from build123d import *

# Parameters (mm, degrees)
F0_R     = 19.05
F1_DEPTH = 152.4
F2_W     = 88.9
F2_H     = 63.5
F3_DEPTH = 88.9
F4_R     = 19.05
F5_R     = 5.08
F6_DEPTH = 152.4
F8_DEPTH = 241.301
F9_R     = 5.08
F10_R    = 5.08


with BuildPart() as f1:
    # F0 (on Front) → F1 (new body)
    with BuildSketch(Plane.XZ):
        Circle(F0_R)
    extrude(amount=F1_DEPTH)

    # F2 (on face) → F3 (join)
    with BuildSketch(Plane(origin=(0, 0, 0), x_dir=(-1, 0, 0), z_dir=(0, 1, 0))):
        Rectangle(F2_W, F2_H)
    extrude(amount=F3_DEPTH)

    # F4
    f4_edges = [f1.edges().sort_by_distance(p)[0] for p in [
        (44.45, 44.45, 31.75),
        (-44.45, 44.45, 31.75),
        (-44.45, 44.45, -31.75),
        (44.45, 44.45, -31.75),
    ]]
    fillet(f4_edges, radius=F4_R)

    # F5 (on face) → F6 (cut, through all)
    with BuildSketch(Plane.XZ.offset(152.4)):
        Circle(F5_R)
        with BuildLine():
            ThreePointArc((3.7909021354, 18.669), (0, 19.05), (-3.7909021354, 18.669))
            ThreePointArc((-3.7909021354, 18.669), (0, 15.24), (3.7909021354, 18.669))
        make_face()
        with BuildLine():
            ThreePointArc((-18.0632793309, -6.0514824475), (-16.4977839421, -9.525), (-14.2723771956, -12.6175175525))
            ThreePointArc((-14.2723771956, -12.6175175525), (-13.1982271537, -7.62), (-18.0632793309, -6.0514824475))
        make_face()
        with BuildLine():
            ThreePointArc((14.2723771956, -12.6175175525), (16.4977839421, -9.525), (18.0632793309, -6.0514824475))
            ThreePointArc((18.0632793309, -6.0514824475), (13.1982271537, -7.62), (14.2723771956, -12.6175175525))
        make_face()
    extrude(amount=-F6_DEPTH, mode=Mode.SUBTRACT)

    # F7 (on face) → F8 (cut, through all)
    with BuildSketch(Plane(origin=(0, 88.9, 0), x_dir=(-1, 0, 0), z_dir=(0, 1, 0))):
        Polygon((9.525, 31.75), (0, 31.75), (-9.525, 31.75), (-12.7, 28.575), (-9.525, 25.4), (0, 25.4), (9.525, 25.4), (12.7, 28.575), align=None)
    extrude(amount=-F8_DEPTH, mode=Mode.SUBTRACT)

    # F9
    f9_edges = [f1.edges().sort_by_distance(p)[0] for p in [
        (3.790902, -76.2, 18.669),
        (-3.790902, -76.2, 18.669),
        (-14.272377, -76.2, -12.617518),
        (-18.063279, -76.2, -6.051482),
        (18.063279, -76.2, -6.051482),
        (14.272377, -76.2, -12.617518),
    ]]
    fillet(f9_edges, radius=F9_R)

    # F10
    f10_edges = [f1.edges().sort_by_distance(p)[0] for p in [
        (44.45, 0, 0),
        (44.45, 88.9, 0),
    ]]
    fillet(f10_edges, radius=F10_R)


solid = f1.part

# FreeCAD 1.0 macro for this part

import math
import FreeCAD as App
import Part
import Sketcher
Q = App.Units.Quantity


def edges_at(feature, points):
    """Names of the edges that pass closest to the given points."""
    edges = feature.Shape.Edges
    near = lambda p: min(range(len(edges)), key=lambda i: edges[i].distToShape(Part.Vertex(*p))[0])
    return sorted({f"Edge{near(p) + 1}" for p in points})

doc = App.newDocument("Part")
body = doc.addObject("PartDesign::Body", "Body")

sketch1 = doc.addObject("Sketcher::SketchObject", "Sketch")
body.addObject(sketch1)
sketch1.AttachmentSupport = (doc.XZ_Plane, [""])
sketch1.MapMode = "FlatFace"
sketch1.addGeometry(Part.Circle(App.Vector(0, 0, 0), App.Vector(0, 0, 1), 19), False)
sketch1.addConstraint([
    Sketcher.Constraint("Coincident", 0, 3, -1, 1),
    Sketcher.Constraint("Diameter", 0, Q("1.5 in")),
])
pad1 = doc.addObject("PartDesign::Pad", "Pad")
body.addObject(pad1)
pad1.Profile = sketch1
pad1.Length = Q("6 in")

sketch2 = doc.addObject("Sketcher::SketchObject", "Sketch001")
body.addObject(sketch2)
sketch2.AttachmentSupport = (doc.XZ_Plane, [""])
sketch2.MapMode = "FlatFace"
sketch2.addGeometry([
    Part.LineSegment(App.Vector(44, 32, 0), App.Vector(44, -32, 0)),
    Part.LineSegment(App.Vector(44, -32, 0), App.Vector(-44, -32, 0)),
    Part.LineSegment(App.Vector(-44, -32, 0), App.Vector(-44, 32, 0)),
    Part.LineSegment(App.Vector(-44, 32, 0), App.Vector(44, 32, 0)),
], False)
sketch2.addConstraint([
    Sketcher.Constraint("Coincident", 0, 2, 1, 1),
    Sketcher.Constraint("Coincident", 1, 2, 2, 1),
    Sketcher.Constraint("Coincident", 2, 2, 3, 1),
    Sketcher.Constraint("Coincident", 3, 2, 0, 1),
    Sketcher.Constraint("Vertical", 0),
    Sketcher.Constraint("Horizontal", 1),
    Sketcher.Constraint("Vertical", 2),
    Sketcher.Constraint("Horizontal", 3),
    Sketcher.Constraint("Symmetric", 0, 2, 2, 2, -1, 1),
    Sketcher.Constraint("DistanceX", 1, 2, 1, 1, Q("3.5 in")),
    Sketcher.Constraint("DistanceY", 0, 2, 0, 1, Q("2.5 in")),
])
pad2 = doc.addObject("PartDesign::Pad", "Pad001")
body.addObject(pad2)
pad2.Profile = sketch2
pad2.Length = Q("3.5 in")
pad2.Reversed = True
doc.recompute()

fillet = doc.addObject("PartDesign::Fillet", "Fillet")
body.addObject(fillet)
fillet.Base = (pad2, edges_at(pad2, [
    (44.45, 44.45, 31.75),
    (-44.45, 44.45, 31.75),
    (-44.45, 44.45, -31.75),
    (44.45, 44.45, -31.75),
]))
fillet.Radius = Q("0.75 in")

sketch3 = doc.addObject("Sketcher::SketchObject", "Sketch002")
body.addObject(sketch3)
sketch3.AttachmentSupport = (doc.XZ_Plane, [""])
sketch3.MapMode = "FlatFace"
sketch3.AttachmentOffset = App.Placement(App.Vector(0, 0, 6 * 25.4), App.Rotation())
sketch3.addGeometry([
    Part.Circle(App.Vector(0, 0, 0), App.Vector(0, 0, 1), 5.1),
    Part.ArcOfCircle(Part.Circle(App.Vector(0, 0, 0), App.Vector(0, 0, 1), 19.1), math.radians(79), math.radians(101)),
    Part.ArcOfCircle(Part.Circle(App.Vector(0, 19.1, 0), App.Vector(0, 0, 1), 3.8), math.radians(-174), math.radians(-6)),
    Part.ArcOfCircle(Part.Circle(App.Vector(0, 0, 0), App.Vector(0, 0, 1), 19), math.radians(-161), math.radians(-139)),
    Part.ArcOfCircle(Part.Circle(App.Vector(-16.5, -9.5, 0), App.Vector(0, 0, 1), 3.8), math.radians(-54), math.radians(114)),
    Part.ArcOfCircle(Part.Circle(App.Vector(0, 0, 0), App.Vector(0, 0, 1), 19), math.radians(-41), math.radians(-19)),
    Part.ArcOfCircle(Part.Circle(App.Vector(16.5, -9.5, 0), App.Vector(0, 0, 1), 3.8), math.radians(66), math.radians(234)),
], False)
sketch3.addConstraint([
    Sketcher.Constraint("Coincident", 1, 1, 2, 2),
    Sketcher.Constraint("Coincident", 2, 1, 1, 2),
    Sketcher.Constraint("Coincident", 3, 1, 4, 2),
    Sketcher.Constraint("Coincident", 4, 1, 3, 2),
    Sketcher.Constraint("Coincident", 5, 1, 6, 2),
    Sketcher.Constraint("Coincident", 6, 1, 5, 2),
    Sketcher.Constraint("Coincident", 0, 3, -1, 1),
    Sketcher.Constraint("Coincident", 1, 3, -1, 1),
    Sketcher.Constraint("Coincident", 3, 3, -1, 1),
    Sketcher.Constraint("Coincident", 5, 3, -1, 1),
    Sketcher.Constraint("Equal", 1, 3),
    Sketcher.Constraint("Equal", 2, 4),
    Sketcher.Constraint("Equal", 3, 5),
    Sketcher.Constraint("Equal", 4, 6),
    Sketcher.Constraint("Symmetric", 4, 3, 6, 3, -2),
    Sketcher.Constraint("PointOnObject", 2, 3, -2),
    Sketcher.Constraint("Diameter", 0, Q("0.4 in")),
    Sketcher.Constraint("Radius", 1, Q("0.75 in")),
    Sketcher.Constraint("Radius", 2, Q("0.15 in")),
    Sketcher.Constraint("DistanceY", -1, 1, 2, 3, Q("0.75 in")),
    Sketcher.Constraint("DistanceY", 4, 3, -1, 1, Q("0.375 in")),
    Sketcher.Constraint("DistanceX", 3, 1, -1, 1, 18.063279),
])
pocket1 = doc.addObject("PartDesign::Pocket", "Pocket")
body.addObject(pocket1)
pocket1.Profile = sketch3
pocket1.Length = Q("6 in")

sketch4 = doc.addObject("Sketcher::SketchObject", "Sketch003")
body.addObject(sketch4)
sketch4.AttachmentSupport = (doc.XZ_Plane, [""])
sketch4.MapMode = "FlatFace"
sketch4.AttachmentOffset = App.Placement(App.Vector(0, 0, -3.5 * 25.4), App.Rotation())
sketch4.addGeometry([
    Part.LineSegment(App.Vector(-9.5, 31.8, 0), App.Vector(9.5, 31.8, 0)),
    Part.LineSegment(App.Vector(9.5, 31.8, 0), App.Vector(12.7, 28.6, 0)),
    Part.LineSegment(App.Vector(12.7, 28.6, 0), App.Vector(9.5, 25.4, 0)),
    Part.LineSegment(App.Vector(9.5, 25.4, 0), App.Vector(-9.5, 25.4, 0)),
    Part.LineSegment(App.Vector(-9.5, 25.4, 0), App.Vector(-12.7, 28.6, 0)),
    Part.LineSegment(App.Vector(-12.7, 28.6, 0), App.Vector(-9.5, 31.8, 0)),
], False)
sketch4.addConstraint([
    Sketcher.Constraint("Coincident", 0, 2, 1, 1),
    Sketcher.Constraint("Coincident", 1, 2, 2, 1),
    Sketcher.Constraint("Coincident", 2, 2, 3, 1),
    Sketcher.Constraint("Coincident", 3, 2, 4, 1),
    Sketcher.Constraint("Coincident", 4, 2, 5, 1),
    Sketcher.Constraint("Coincident", 5, 2, 0, 1),
    Sketcher.Constraint("Horizontal", 0),
    Sketcher.Constraint("Horizontal", 3),
    Sketcher.Constraint("Symmetric", 1, 2, 4, 2, -2),
    Sketcher.Constraint("Perpendicular", 1, 2),
    Sketcher.Constraint("Perpendicular", 2, 4),
    Sketcher.Constraint("Perpendicular", 4, 5),
    Sketcher.Constraint("Vertical", 0, 2, 2, 2),
    Sketcher.Constraint("Vertical", 3, 2, 5, 2),
    Sketcher.Constraint("DistanceY", -1, 1, 2, 2, Q("1 in")),
    Sketcher.Constraint("DistanceX", 4, 2, 1, 2, Q("1 in")),
    Sketcher.Constraint("DistanceX", 0, 1, 0, 2, Q("0.75 in")),
])
pocket2 = doc.addObject("PartDesign::Pocket", "Pocket001")
body.addObject(pocket2)
pocket2.Profile = sketch4
pocket2.Type = "ThroughAll"
pocket2.Reversed = True
doc.recompute()

fillet2 = doc.addObject("PartDesign::Fillet", "Fillet001")
body.addObject(fillet2)
fillet2.Base = (pocket2, edges_at(pocket2, [
    (3.791, -76.2, 18.669),
    (-3.791, -76.2, 18.669),
    (-14.272, -76.2, -12.618),
    (-18.063, -76.2, -6.051),
    (18.063, -76.2, -6.051),
    (14.272, -76.2, -12.618),
]))
fillet2.Radius = Q("0.2 in")
doc.recompute()

fillet3 = doc.addObject("PartDesign::Fillet", "Fillet002")
body.addObject(fillet3)
fillet3.Base = (fillet2, edges_at(fillet2, [(44.45, 0, 0), (44.45, 88.9, 0)]))
fillet3.Radius = Q("0.2 in")

doc.recompute()
